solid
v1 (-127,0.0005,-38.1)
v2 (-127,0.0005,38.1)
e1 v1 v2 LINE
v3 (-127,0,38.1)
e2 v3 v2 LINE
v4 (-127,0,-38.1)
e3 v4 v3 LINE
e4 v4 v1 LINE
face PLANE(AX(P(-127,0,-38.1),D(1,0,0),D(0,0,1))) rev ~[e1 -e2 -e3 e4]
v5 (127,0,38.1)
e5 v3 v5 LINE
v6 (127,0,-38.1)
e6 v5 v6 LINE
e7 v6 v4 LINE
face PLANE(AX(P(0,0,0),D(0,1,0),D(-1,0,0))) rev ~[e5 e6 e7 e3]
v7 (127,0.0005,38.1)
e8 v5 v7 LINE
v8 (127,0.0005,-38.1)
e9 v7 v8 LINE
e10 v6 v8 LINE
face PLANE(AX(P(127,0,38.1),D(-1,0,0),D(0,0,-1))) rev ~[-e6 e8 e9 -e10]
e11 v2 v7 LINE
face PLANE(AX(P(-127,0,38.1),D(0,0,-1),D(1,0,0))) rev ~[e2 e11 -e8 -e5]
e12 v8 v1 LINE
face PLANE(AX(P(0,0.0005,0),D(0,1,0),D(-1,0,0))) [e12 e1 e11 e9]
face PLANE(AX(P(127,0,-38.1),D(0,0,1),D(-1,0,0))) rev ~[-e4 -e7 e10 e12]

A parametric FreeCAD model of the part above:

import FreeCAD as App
import Part
import Sketcher

V = App.Vector
Q = App.Units.Quantity


def add_polygon(sketch, points):
    """Adds a closed chain of lines whose ends are joined by coincident constraints."""
    first, n = sketch.GeometryCount, len(points)
    for a, b in zip(points, points[1:] + points[:1]):
        sketch.addGeometry(Part.LineSegment(App.Vector(*a, 0), App.Vector(*b, 0)), False)
    for i in range(n):
        sketch.addConstraint(Sketcher.Constraint("Coincident", first + i, 2, first + (i + 1) % n, 1))

doc = App.newDocument("Part")
params = doc.addObject("Spreadsheet::Sheet", "Params")
for row, (alias, value) in enumerate([
    ("sketch1_width", "10 in"),
    ("sketch1_height", "3 in"),
    ("pad1_length", "0.0005 mm"),
], start=1):
    params.set(f"A{row}", alias)
    params.set(f"B{row}", "=" + value)
    params.setAlias(f"B{row}", alias)

body = doc.addObject("PartDesign::Body", "Body")

# Sketch on XZ plane
sketch1 = body.newObject("Sketcher::SketchObject", "Sketch")
sketch1.AttachmentSupport = (doc.getObject("XZ_Plane"), [""])
sketch1.MapMode = "FlatFace"
add_polygon(sketch1, [(-127, -38), (-127, 38), (127, 38), (127, -38)])  # lines 0-3
sketch1.addConstraint([
    Sketcher.Constraint("Vertical", 0),
    Sketcher.Constraint("Horizontal", 1),
    Sketcher.Constraint("Vertical", 2),
    Sketcher.Constraint("Horizontal", 3),
    Sketcher.Constraint("Symmetric", 0, 2, 2, 2, -1, 1),
    Sketcher.Constraint("DistanceX", 1, 1, 1, 2, Q("10 in")),
    Sketcher.Constraint("DistanceY", 0, 1, 0, 2, Q("3 in")),
])
sketch1.setExpression("Constraints[9]", "Params.sketch1_width")
sketch1.setExpression("Constraints[10]", "Params.sketch1_height")
pad1 = body.newObject("PartDesign::Pad", "Pad")
pad1.Profile = sketch1
pad1.setExpression("Length", "Params.pad1_length")
pad1.Reversed = True

doc.recompute()
